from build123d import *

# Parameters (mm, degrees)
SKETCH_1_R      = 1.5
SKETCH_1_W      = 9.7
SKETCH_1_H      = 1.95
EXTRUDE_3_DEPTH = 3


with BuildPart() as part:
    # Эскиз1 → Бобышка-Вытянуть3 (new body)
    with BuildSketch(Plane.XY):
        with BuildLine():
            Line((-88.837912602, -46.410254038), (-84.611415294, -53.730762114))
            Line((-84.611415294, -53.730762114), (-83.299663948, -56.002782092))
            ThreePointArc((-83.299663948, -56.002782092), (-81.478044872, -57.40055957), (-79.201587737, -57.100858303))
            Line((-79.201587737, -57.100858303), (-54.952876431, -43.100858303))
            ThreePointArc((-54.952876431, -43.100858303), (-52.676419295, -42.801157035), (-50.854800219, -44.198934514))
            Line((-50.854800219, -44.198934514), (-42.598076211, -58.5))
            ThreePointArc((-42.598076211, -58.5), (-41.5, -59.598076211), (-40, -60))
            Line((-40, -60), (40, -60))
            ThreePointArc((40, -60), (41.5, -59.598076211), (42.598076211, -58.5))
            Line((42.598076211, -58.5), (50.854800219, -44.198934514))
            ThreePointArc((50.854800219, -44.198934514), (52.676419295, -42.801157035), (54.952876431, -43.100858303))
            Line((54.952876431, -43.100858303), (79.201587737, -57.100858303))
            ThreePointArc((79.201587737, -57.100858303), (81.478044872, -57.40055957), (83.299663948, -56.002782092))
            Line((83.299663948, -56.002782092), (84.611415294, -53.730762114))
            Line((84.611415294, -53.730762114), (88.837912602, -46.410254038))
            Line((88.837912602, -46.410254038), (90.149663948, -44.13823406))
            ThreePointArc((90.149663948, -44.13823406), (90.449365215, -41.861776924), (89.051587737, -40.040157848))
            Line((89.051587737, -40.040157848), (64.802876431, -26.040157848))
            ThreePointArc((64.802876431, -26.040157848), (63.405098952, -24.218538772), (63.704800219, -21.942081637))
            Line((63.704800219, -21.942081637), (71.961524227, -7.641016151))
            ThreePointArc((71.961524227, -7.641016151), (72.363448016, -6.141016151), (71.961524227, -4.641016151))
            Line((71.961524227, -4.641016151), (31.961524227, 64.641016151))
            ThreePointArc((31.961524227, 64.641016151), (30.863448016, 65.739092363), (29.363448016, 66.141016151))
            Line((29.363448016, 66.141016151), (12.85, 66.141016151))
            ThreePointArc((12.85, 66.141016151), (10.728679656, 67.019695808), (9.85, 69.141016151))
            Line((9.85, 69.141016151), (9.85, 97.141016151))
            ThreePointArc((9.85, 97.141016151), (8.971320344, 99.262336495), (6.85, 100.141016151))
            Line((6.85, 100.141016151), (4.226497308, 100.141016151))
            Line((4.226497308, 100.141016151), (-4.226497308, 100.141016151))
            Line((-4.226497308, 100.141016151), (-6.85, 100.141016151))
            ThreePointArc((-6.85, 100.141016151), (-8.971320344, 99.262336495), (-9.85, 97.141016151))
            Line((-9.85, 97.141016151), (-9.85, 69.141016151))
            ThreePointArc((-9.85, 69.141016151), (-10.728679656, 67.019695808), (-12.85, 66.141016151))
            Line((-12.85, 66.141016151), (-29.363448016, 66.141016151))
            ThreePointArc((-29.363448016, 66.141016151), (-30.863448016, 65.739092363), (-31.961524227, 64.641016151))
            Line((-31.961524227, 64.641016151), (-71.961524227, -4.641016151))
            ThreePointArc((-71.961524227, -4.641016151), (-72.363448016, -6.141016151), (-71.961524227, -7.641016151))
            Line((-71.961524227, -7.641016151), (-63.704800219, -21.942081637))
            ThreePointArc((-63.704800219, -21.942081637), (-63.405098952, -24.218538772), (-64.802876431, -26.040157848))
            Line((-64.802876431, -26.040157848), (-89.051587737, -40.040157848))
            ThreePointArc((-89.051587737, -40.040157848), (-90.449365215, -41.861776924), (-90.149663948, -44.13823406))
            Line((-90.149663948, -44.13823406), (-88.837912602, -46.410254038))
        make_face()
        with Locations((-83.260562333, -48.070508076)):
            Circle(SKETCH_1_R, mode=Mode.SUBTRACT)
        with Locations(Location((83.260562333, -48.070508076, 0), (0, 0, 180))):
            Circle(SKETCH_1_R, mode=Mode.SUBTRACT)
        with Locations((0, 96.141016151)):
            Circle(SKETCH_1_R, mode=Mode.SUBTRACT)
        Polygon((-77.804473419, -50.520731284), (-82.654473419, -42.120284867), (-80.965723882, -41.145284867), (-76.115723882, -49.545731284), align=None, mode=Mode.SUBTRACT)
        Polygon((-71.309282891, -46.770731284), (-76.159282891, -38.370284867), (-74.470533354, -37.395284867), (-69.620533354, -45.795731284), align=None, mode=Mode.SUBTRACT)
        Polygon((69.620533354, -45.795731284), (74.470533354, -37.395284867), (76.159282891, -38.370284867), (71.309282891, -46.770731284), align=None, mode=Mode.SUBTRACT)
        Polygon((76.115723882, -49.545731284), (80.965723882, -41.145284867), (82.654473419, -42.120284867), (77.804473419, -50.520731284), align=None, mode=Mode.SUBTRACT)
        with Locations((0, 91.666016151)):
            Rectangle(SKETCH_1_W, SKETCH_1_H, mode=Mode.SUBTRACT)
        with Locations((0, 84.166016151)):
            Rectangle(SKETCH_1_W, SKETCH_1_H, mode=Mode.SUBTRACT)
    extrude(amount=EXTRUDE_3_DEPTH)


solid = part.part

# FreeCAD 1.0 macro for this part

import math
import FreeCAD as App
import Part
import Sketcher
Q = App.Units.Quantity

doc = App.newDocument("Part")
params = doc.addObject("Spreadsheet::Sheet", "Params")
for row, (alias, value) in enumerate([
    ("sketch1_diameter", "3 mm"),
    ("sketch1_radius", "3 mm"),
    ("sketch1_width", "80 mm"),
    ("sketch1_height", "28 mm"),
    ("sketch1_length", "28 mm"),
    ("pad1_length", "3 mm"),
], start=1):
    params.set(f"A{row}", alias)
    params.set(f"B{row}", "=" + value)
    params.setAlias(f"B{row}", alias)

body = doc.addObject("PartDesign::Body", "Body")

# Sketch on XY plane
sketch1 = body.newObject("Sketcher::SketchObject", "Sketch")
sketch1.AttachmentSupport = (doc.getObject("XY_Plane"), [""])
sketch1.MapMode = "FlatFace"
sketch1.addGeometry([
    Part.LineSegment(App.Vector(-88.837913, -46.410254, 0), App.Vector(-84.611415, -53.730762, 0)),  # 0
    Part.LineSegment(App.Vector(-84.611415, -53.730762, 0), App.Vector(-83.299664, -56.002782, 0)),  # 1
    Part.ArcOfCircle(Part.Circle(App.Vector(-80.701588, -54.502782, 0), App.Vector(0, 0, 1), 3), math.radians(-150), math.radians(-60)),  # 2
    Part.LineSegment(App.Vector(-79.201588, -57.100858, 0), App.Vector(-54.952876, -43.100858, 0)),  # 3
    Part.ArcOfCircle(Part.Circle(App.Vector(-53.452876, -45.698935, 0), App.Vector(0, 0, 1), 3), math.radians(30), math.radians(120)),  # 4
    Part.LineSegment(App.Vector(-50.8548, -44.198935, 0), App.Vector(-42.598076, -58.5, 0)),  # 5
    Part.ArcOfCircle(Part.Circle(App.Vector(-40, -57, 0), App.Vector(0, 0, 1), 3), math.radians(-150), math.radians(-90)),  # 6
    Part.LineSegment(App.Vector(-40, -60, 0), App.Vector(40, -60, 0)),  # 7
    Part.ArcOfCircle(Part.Circle(App.Vector(40, -57, 0), App.Vector(0, 0, 1), 3), math.radians(-90), math.radians(-30)),  # 8
    Part.LineSegment(App.Vector(42.598076, -58.5, 0), App.Vector(50.8548, -44.198935, 0)),  # 9
    Part.ArcOfCircle(Part.Circle(App.Vector(53.452876, -45.698935, 0), App.Vector(0, 0, 1), 3), math.radians(60), math.radians(150)),  # 10
    Part.LineSegment(App.Vector(54.952876, -43.100858, 0), App.Vector(79.201588, -57.100858, 0)),  # 11
    Part.ArcOfCircle(Part.Circle(App.Vector(80.701588, -54.502782, 0), App.Vector(0, 0, 1), 3), math.radians(-120), math.radians(-30)),  # 12
    Part.LineSegment(App.Vector(83.299664, -56.002782, 0), App.Vector(84.611415, -53.730762, 0)),  # 13
    Part.LineSegment(App.Vector(84.611415, -53.730762, 0), App.Vector(88.837913, -46.410254, 0)),  # 14
    Part.LineSegment(App.Vector(88.837913, -46.410254, 0), App.Vector(90.149664, -44.138234, 0)),  # 15
    Part.ArcOfCircle(Part.Circle(App.Vector(87.551588, -42.638234, 0), App.Vector(0, 0, 1), 3), math.radians(-30), math.radians(60)),  # 16
    Part.LineSegment(App.Vector(89.051588, -40.040158, 0), App.Vector(64.802876, -26.040158, 0)),  # 17
    Part.ArcOfCircle(Part.Circle(App.Vector(66.302876, -23.442082, 0), App.Vector(0, 0, 1), 3), math.radians(150), math.radians(240)),  # 18
    Part.LineSegment(App.Vector(63.7048, -21.942082, 0), App.Vector(71.961524, -7.641016, 0)),  # 19
    Part.ArcOfCircle(Part.Circle(App.Vector(69.363448, -6.141016, 0), App.Vector(0, 0, 1), 3), math.radians(-30), math.radians(30)),  # 20
    Part.LineSegment(App.Vector(71.961524, -4.641016, 0), App.Vector(31.961524, 64.641016, 0)),  # 21
    Part.ArcOfCircle(Part.Circle(App.Vector(29.363448, 63.141016, 0), App.Vector(0, 0, 1), 3), math.radians(30), math.radians(90)),  # 22
    Part.LineSegment(App.Vector(29.363448, 66.141016, 0), App.Vector(12.85, 66.141016, 0)),  # 23
    Part.ArcOfCircle(Part.Circle(App.Vector(12.85, 69.141016, 0), App.Vector(0, 0, 1), 3), math.radians(180), math.radians(270)),  # 24
    Part.LineSegment(App.Vector(9.85, 69.141016, 0), App.Vector(9.85, 97.141016, 0)),  # 25
    Part.ArcOfCircle(Part.Circle(App.Vector(6.85, 97.141016, 0), App.Vector(0, 0, 1), 3), math.radians(0), math.radians(90)),  # 26
    Part.LineSegment(App.Vector(6.85, 100.141016, 0), App.Vector(-6.85, 100.141016, 0)),  # 27
    Part.ArcOfCircle(Part.Circle(App.Vector(-6.85, 97.141016, 0), App.Vector(0, 0, 1), 3), math.radians(90), math.radians(180)),  # 28
    Part.LineSegment(App.Vector(-9.85, 97.141016, 0), App.Vector(-9.85, 69.141016, 0)),  # 29
    Part.ArcOfCircle(Part.Circle(App.Vector(-12.85, 69.141016, 0), App.Vector(0, 0, 1), 3), math.radians(-90), math.radians(0)),  # 30
    Part.LineSegment(App.Vector(-12.85, 66.141016, 0), App.Vector(-29.363448, 66.141016, 0)),  # 31
    Part.ArcOfCircle(Part.Circle(App.Vector(-29.363448, 63.141016, 0), App.Vector(0, 0, 1), 3), math.radians(90), math.radians(150)),  # 32
    Part.LineSegment(App.Vector(-31.961524, 64.641016, 0), App.Vector(-71.961524, -4.641016, 0)),  # 33
    Part.ArcOfCircle(Part.Circle(App.Vector(-69.363448, -6.141016, 0), App.Vector(0, 0, 1), 3), math.radians(150), math.radians(210)),  # 34
    Part.LineSegment(App.Vector(-71.961524, -7.641016, 0), App.Vector(-63.7048, -21.942082, 0)),  # 35
    Part.ArcOfCircle(Part.Circle(App.Vector(-66.302876, -23.442082, 0), App.Vector(0, 0, 1), 3), math.radians(-60), math.radians(30)),  # 36
    Part.LineSegment(App.Vector(-64.802876, -26.040158, 0), App.Vector(-89.051588, -40.040158, 0)),  # 37
    Part.ArcOfCircle(Part.Circle(App.Vector(-87.551588, -42.638234, 0), App.Vector(0, 0, 1), 3), math.radians(120), math.radians(210)),  # 38
    Part.LineSegment(App.Vector(-90.149664, -44.138234, 0), App.Vector(-88.837913, -46.410254, 0)),  # 39
    Part.Circle(App.Vector(-83.260562, -48.070508, 0), App.Vector(0, 0, 1), 1.5),  # 40
    Part.LineSegment(App.Vector(-76.115724, -49.545731, 0), App.Vector(-77.804473, -50.520731, 0)),  # 41
    Part.LineSegment(App.Vector(-77.804473, -50.520731, 0), App.Vector(-82.654473, -42.120285, 0)),  # 42
    Part.LineSegment(App.Vector(-82.654473, -42.120285, 0), App.Vector(-80.965724, -41.145285, 0)),  # 43
    Part.LineSegment(App.Vector(-80.965724, -41.145285, 0), App.Vector(-76.115724, -49.545731, 0)),  # 44
    Part.LineSegment(App.Vector(-69.620533, -45.795731, 0), App.Vector(-71.309283, -46.770731, 0)),  # 45
    Part.LineSegment(App.Vector(-71.309283, -46.770731, 0), App.Vector(-76.159283, -38.370285, 0)),  # 46
    Part.LineSegment(App.Vector(-76.159283, -38.370285, 0), App.Vector(-74.470533, -37.395285, 0)),  # 47
    Part.LineSegment(App.Vector(-74.470533, -37.395285, 0), App.Vector(-69.620533, -45.795731, 0)),  # 48
    Part.LineSegment(App.Vector(71.309283, -46.770731, 0), App.Vector(69.620533, -45.795731, 0)),  # 49
    Part.LineSegment(App.Vector(69.620533, -45.795731, 0), App.Vector(74.470533, -37.395285, 0)),  # 50
    Part.LineSegment(App.Vector(74.470533, -37.395285, 0), App.Vector(76.159283, -38.370285, 0)),  # 51
    Part.LineSegment(App.Vector(76.159283, -38.370285, 0), App.Vector(71.309283, -46.770731, 0)),  # 52
    Part.Circle(App.Vector(83.260562, -48.070508, 0), App.Vector(0, 0, 1), 1.5),  # 53
    Part.LineSegment(App.Vector(77.804473, -50.520731, 0), App.Vector(76.115724, -49.545731, 0)),  # 54
    Part.LineSegment(App.Vector(76.115724, -49.545731, 0), App.Vector(80.965724, -41.145285, 0)),  # 55
    Part.LineSegment(App.Vector(80.965724, -41.145285, 0), App.Vector(82.654473, -42.120285, 0)),  # 56
    Part.LineSegment(App.Vector(82.654473, -42.120285, 0), App.Vector(77.804473, -50.520731, 0)),  # 57
    Part.LineSegment(App.Vector(4.85, 83.191016, 0), App.Vector(-4.85, 83.191016, 0)),  # 58
    Part.LineSegment(App.Vector(-4.85, 83.191016, 0), App.Vector(-4.85, 85.141016, 0)),  # 59
    Part.LineSegment(App.Vector(-4.85, 85.141016, 0), App.Vector(4.85, 85.141016, 0)),  # 60
    Part.LineSegment(App.Vector(4.85, 85.141016, 0), App.Vector(4.85, 83.191016, 0)),  # 61
    Part.LineSegment(App.Vector(4.85, 90.691016, 0), App.Vector(-4.85, 90.691016, 0)),  # 62
    Part.LineSegment(App.Vector(-4.85, 90.691016, 0), App.Vector(-4.85, 92.641016, 0)),  # 63
    Part.LineSegment(App.Vector(-4.85, 92.641016, 0), App.Vector(4.85, 92.641016, 0)),  # 64
    Part.LineSegment(App.Vector(4.85, 92.641016, 0), App.Vector(4.85, 90.691016, 0)),  # 65
    Part.Circle(App.Vector(0, 96.141016, 0), App.Vector(0, 0, 1), 1.5),  # 66
], False)
sketch1.addConstraint([
    Sketcher.Constraint("Coincident", 0, 2, 1, 1),
    Sketcher.Constraint("Tangent", 1, 2, 2, 1),
    Sketcher.Constraint("Tangent", 2, 2, 3, 1),
    Sketcher.Constraint("Tangent", 3, 2, 4, 2),
    Sketcher.Constraint("Tangent", 4, 1, 5, 1),
    Sketcher.Constraint("Tangent", 5, 2, 6, 1),
    Sketcher.Constraint("Tangent", 6, 2, 7, 1),
    Sketcher.Constraint("Tangent", 7, 2, 8, 1),
    Sketcher.Constraint("Tangent", 8, 2, 9, 1),
    Sketcher.Constraint("Tangent", 9, 2, 10, 2),
    Sketcher.Constraint("Tangent", 10, 1, 11, 1),
    Sketcher.Constraint("Tangent", 11, 2, 12, 1),
    Sketcher.Constraint("Tangent", 12, 2, 13, 1),
    Sketcher.Constraint("Coincident", 13, 2, 14, 1),
    Sketcher.Constraint("Coincident", 14, 2, 15, 1),
    Sketcher.Constraint("Tangent", 15, 2, 16, 1),
    Sketcher.Constraint("Tangent", 16, 2, 17, 1),
    Sketcher.Constraint("Tangent", 17, 2, 18, 2),
    Sketcher.Constraint("Tangent", 18, 1, 19, 1),
    Sketcher.Constraint("Tangent", 19, 2, 20, 1),
    Sketcher.Constraint("Tangent", 20, 2, 21, 1),
    Sketcher.Constraint("Tangent", 21, 2, 22, 1),
    Sketcher.Constraint("Tangent", 22, 2, 23, 1),
    Sketcher.Constraint("Tangent", 23, 2, 24, 2),
    Sketcher.Constraint("Tangent", 24, 1, 25, 1),
    Sketcher.Constraint("Tangent", 25, 2, 26, 1),
    Sketcher.Constraint("Tangent", 26, 2, 27, 1),
    Sketcher.Constraint("Tangent", 27, 2, 28, 1),
    Sketcher.Constraint("Tangent", 28, 2, 29, 1),
    Sketcher.Constraint("Tangent", 29, 2, 30, 2),
    Sketcher.Constraint("Tangent", 30, 1, 31, 1),
    Sketcher.Constraint("Tangent", 31, 2, 32, 1),
    Sketcher.Constraint("Tangent", 32, 2, 33, 1),
    Sketcher.Constraint("Tangent", 33, 2, 34, 1),
    Sketcher.Constraint("Tangent", 34, 2, 35, 1),
    Sketcher.Constraint("Tangent", 35, 2, 36, 2),
    Sketcher.Constraint("Tangent", 36, 1, 37, 1),
    Sketcher.Constraint("Tangent", 37, 2, 38, 1),
    Sketcher.Constraint("Tangent", 38, 2, 39, 1),
    Sketcher.Constraint("Coincident", 39, 2, 0, 1),
    Sketcher.Constraint("Coincident", 41, 2, 42, 1),
    Sketcher.Constraint("Coincident", 42, 2, 43, 1),
    Sketcher.Constraint("Coincident", 43, 2, 44, 1),
    Sketcher.Constraint("Coincident", 44, 2, 41, 1),
    Sketcher.Constraint("Coincident", 45, 2, 46, 1),
    Sketcher.Constraint("Coincident", 46, 2, 47, 1),
    Sketcher.Constraint("Coincident", 47, 2, 48, 1),
    Sketcher.Constraint("Coincident", 48, 2, 45, 1),
    Sketcher.Constraint("Coincident", 49, 2, 50, 1),
    Sketcher.Constraint("Coincident", 50, 2, 51, 1),
    Sketcher.Constraint("Coincident", 51, 2, 52, 1),
    Sketcher.Constraint("Coincident", 52, 2, 49, 1),
    Sketcher.Constraint("Coincident", 54, 2, 55, 1),
    Sketcher.Constraint("Coincident", 55, 2, 56, 1),
    Sketcher.Constraint("Coincident", 56, 2, 57, 1),
    Sketcher.Constraint("Coincident", 57, 2, 54, 1),
    Sketcher.Constraint("Coincident", 58, 2, 59, 1),
    Sketcher.Constraint("Coincident", 59, 2, 60, 1),
    Sketcher.Constraint("Coincident", 60, 2, 61, 1),
    Sketcher.Constraint("Coincident", 61, 2, 58, 1),
    Sketcher.Constraint("Coincident", 62, 2, 63, 1),
    Sketcher.Constraint("Coincident", 63, 2, 64, 1),
    Sketcher.Constraint("Coincident", 64, 2, 65, 1),
    Sketcher.Constraint("Coincident", 65, 2, 62, 1),
    Sketcher.Constraint("Horizontal", 7),
    Sketcher.Constraint("Horizontal", 23),
    Sketcher.Constraint("Vertical", 25),
    Sketcher.Constraint("Horizontal", 27),
    Sketcher.Constraint("Vertical", 29),
    Sketcher.Constraint("Horizontal", 31),
    Sketcher.Constraint("Horizontal", 58),
    Sketcher.Constraint("Vertical", 59),
    Sketcher.Constraint("Horizontal", 60),
    Sketcher.Constraint("Vertical", 61),
    Sketcher.Constraint("Horizontal", 62),
    Sketcher.Constraint("Vertical", 63),
    Sketcher.Constraint("Horizontal", 64),
    Sketcher.Constraint("Vertical", 65),
    Sketcher.Constraint("Equal", 2, 4),
    Sketcher.Constraint("Equal", 4, 6),
    Sketcher.Constraint("Equal", 6, 8),
    Sketcher.Constraint("Equal", 8, 10),
    Sketcher.Constraint("Equal", 10, 12),
    Sketcher.Constraint("Equal", 12, 16),
    Sketcher.Constraint("Equal", 16, 18),
    Sketcher.Constraint("Equal", 18, 20),
    Sketcher.Constraint("Equal", 20, 22),
    Sketcher.Constraint("Equal", 22, 24),
    Sketcher.Constraint("Equal", 24, 26),
    Sketcher.Constraint("Equal", 26, 28),
    Sketcher.Constraint("Equal", 28, 30),
    Sketcher.Constraint("Equal", 30, 32),
    Sketcher.Constraint("Equal", 32, 34),
    Sketcher.Constraint("Equal", 34, 36),
    Sketcher.Constraint("Equal", 36, 38),
    Sketcher.Constraint("Equal", 40, 53),
    Sketcher.Constraint("Equal", 53, 66),
    Sketcher.Constraint("Symmetric", 4, 3, 10, 3, -2),
    Sketcher.Constraint("Symmetric", 2, 3, 12, 3, -2),
    Sketcher.Constraint("Symmetric", 24, 3, 30, 3, -2),
    Sketcher.Constraint("Symmetric", 20, 3, 34, 3, -2),
    Sketcher.Constraint("Symmetric", 18, 3, 36, 3, -2),
    Sketcher.Constraint("Symmetric", 16, 3, 38, 3, -2),
    Sketcher.Constraint("Symmetric", 40, 3, 53, 3, -2),
    Sketcher.Constraint("Symmetric", 0, 2, 13, 2, -2),
    Sketcher.Constraint("Symmetric", 14, 2, 39, 2, -2),
    Sketcher.Constraint("Symmetric", 48, 2, 49, 2, -2),
    Sketcher.Constraint("Symmetric", 47, 2, 50, 2, -2),
    Sketcher.Constraint("Symmetric", 46, 2, 51, 2, -2),
    Sketcher.Constraint("Symmetric", 45, 2, 52, 2, -2),
    Sketcher.Constraint("Symmetric", 44, 2, 54, 2, -2),
    Sketcher.Constraint("Symmetric", 43, 2, 55, 2, -2),
    Sketcher.Constraint("Symmetric", 42, 2, 56, 2, -2),
    Sketcher.Constraint("Symmetric", 41, 2, 57, 2, -2),
    Sketcher.Constraint("PointOnObject", 66, 3, -2),
    Sketcher.Constraint("Parallel", 0, 1),
    Sketcher.Constraint("Perpendicular", 1, 3),
    Sketcher.Constraint("Perpendicular", 3, 5),
    Sketcher.Constraint("Perpendicular", 9, 11),
    Sketcher.Constraint("Parallel", 14, 15),
    Sketcher.Constraint("Perpendicular", 15, 17),
    Sketcher.Constraint("Perpendicular", 17, 19),
    Sketcher.Constraint("Parallel", 5, 21),
    Sketcher.Constraint("Parallel", 19, 33),
    Sketcher.Constraint("Perpendicular", 39, 41),
    Sketcher.Constraint("Perpendicular", 41, 42),
    Sketcher.Constraint("Perpendicular", 42, 43),
    Sketcher.Constraint("Perpendicular", 43, 44),
    Sketcher.Constraint("Perpendicular", 44, 45),
    Sketcher.Constraint("Perpendicular", 45, 46),
    Sketcher.Constraint("Perpendicular", 46, 47),
    Sketcher.Constraint("Perpendicular", 47, 48),
    Sketcher.Constraint("Vertical", 59, 2, 62, 2),
    Sketcher.Constraint("Vertical", 61, 2, 64, 2),
    Sketcher.Constraint("Equal", 61, 63),
    Sketcher.Constraint("Equal", 13, 15),
    Sketcher.Constraint("Equal", 11, 17),
    Sketcher.Constraint("Equal", 9, 19),
    Sketcher.Constraint("Equal", 43, 45),
    Sketcher.Constraint("Equal", 44, 46),
    Sketcher.Constraint("Diameter", 40, 3.0),
    Sketcher.Constraint("Radius", 2, 3.0),
    Sketcher.Constraint("DistanceX", 7, 1, 7, 2, 80.0),
    Sketcher.Constraint("DistanceY", 25, 1, 25, 2, 28.0),
    Sketcher.Constraint("Angle", 0, Q("-60 deg")),
    Sketcher.Constraint("Distance", 3, 28.0),
    Sketcher.Constraint("Distance", 21, 80.0),
    Sketcher.Constraint("DistanceX", 27, 2, 27, 1, 13.7),
    Sketcher.Constraint("DistanceX", 58, 2, 58, 1, 9.7),
    Sketcher.Constraint("DistanceY", 6, 3, -1, 1, 57.0),
    Sketcher.Constraint("Distance", 42, 9.7),
    Sketcher.Constraint("DistanceY", 59, 1, 59, 2, 1.95),
    Sketcher.Constraint("Distance", 41, 1.95),
    Sketcher.Constraint("DistanceX", 58, 2, -1, 1, 4.85),
    Sketcher.Constraint("DistanceX", 23, 2, 23, 1, 16.513448),
    Sketcher.Constraint("DistanceX", 4, 1, -1, 1, 50.8548),
    Sketcher.Constraint("DistanceY", 40, 3, -1, 1, 48.070508),
    Sketcher.Constraint("DistanceY", 41, 2, -1, 1, 50.520731),
    Sketcher.Constraint("DistanceY", 45, 2, -1, 1, 46.770731),
    Sketcher.Constraint("Distance", 0, 8.452995),
    Sketcher.Constraint("DistanceX", 40, 3, -1, 1, 83.260562),
    Sketcher.Constraint("DistanceY", -1, 1, 66, 3, 96.141016),
    Sketcher.Constraint("DistanceX", 41, 2, -1, 1, 77.804473),
    Sketcher.Constraint("DistanceX", 45, 2, -1, 1, 71.309283),
    Sketcher.Constraint("DistanceY", -1, 1, 58, 2, 83.191016),
    Sketcher.Constraint("DistanceY", -1, 1, 62, 2, 90.691016),
])
sketch1.setExpression("Constraints[140]", "Params.sketch1_diameter")
sketch1.setExpression("Constraints[141]", "Params.sketch1_radius")
sketch1.setExpression("Constraints[142]", "Params.sketch1_width")
sketch1.setExpression("Constraints[143]", "Params.sketch1_height")
sketch1.setExpression("Constraints[145]", "Params.sketch1_length")
pad1 = body.newObject("PartDesign::Pad", "Pad")
pad1.Profile = sketch1
pad1.setExpression("Length", "Params.pad1_length")

doc.recompute()
